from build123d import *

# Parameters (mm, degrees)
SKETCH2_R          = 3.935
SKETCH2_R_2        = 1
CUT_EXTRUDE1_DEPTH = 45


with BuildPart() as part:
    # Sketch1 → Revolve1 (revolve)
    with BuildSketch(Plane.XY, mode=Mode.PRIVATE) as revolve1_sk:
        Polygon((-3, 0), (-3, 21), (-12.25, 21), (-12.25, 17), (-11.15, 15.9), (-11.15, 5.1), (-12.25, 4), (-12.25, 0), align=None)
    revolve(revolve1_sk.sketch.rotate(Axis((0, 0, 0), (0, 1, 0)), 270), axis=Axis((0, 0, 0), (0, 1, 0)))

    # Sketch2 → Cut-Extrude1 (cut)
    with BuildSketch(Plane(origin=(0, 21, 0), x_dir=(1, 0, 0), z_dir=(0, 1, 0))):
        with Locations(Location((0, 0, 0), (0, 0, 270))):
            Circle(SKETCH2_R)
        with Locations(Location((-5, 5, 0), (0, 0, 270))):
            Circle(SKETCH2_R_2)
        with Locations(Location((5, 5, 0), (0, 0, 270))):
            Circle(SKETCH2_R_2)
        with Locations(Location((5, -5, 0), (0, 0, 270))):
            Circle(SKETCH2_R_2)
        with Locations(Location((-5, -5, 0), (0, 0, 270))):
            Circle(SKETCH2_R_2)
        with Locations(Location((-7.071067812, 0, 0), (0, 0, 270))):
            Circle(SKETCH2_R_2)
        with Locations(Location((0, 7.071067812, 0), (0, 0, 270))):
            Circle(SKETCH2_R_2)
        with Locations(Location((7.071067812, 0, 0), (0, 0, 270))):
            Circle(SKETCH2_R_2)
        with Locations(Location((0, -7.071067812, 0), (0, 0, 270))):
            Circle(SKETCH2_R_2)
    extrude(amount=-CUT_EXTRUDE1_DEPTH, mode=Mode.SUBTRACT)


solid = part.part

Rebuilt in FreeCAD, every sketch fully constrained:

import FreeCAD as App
import Part
import Sketcher


def add_polygon(sketch, points):
    """Adds a closed chain of lines whose ends are joined by coincident constraints."""
    first, n = sketch.GeometryCount, len(points)
    for a, b in zip(points, points[1:] + points[:1]):
        sketch.addGeometry(Part.LineSegment(App.Vector(*a, 0), App.Vector(*b, 0)), False)
    for i in range(n):
        sketch.addConstraint(Sketcher.Constraint("Coincident", first + i, 2, first + (i + 1) % n, 1))

doc = App.newDocument("Part")
body = doc.addObject("PartDesign::Body", "Body")

# Sketch on XY plane
sketch1 = doc.addObject("Sketcher::SketchObject", "Sketch")
body.addObject(sketch1)
sketch1.AttachmentSupport = (doc.XY_Plane, [""])
sketch1.MapMode = "FlatFace"
add_polygon(sketch1, [(-3, 0), (-3, 21), (-12.2, 21), (-12.2, 17), (-11.2, 15.9), (-11.2, 5.1), (-12.2, 4), (-12.2, 0)])  # lines 0-7
sketch1.addConstraint(Sketcher.Constraint("Vertical", 0))
sketch1.addConstraint(Sketcher.Constraint("Horizontal", 1))
sketch1.addConstraint(Sketcher.Constraint("Vertical", 2))
sketch1.addConstraint(Sketcher.Constraint("Vertical", 4))
sketch1.addConstraint(Sketcher.Constraint("Vertical", 6))
sketch1.addConstraint(Sketcher.Constraint("Horizontal", 7))
sketch1.addConstraint(Sketcher.Constraint("PointOnObject", 6, 2, -1))
sketch1.addConstraint(Sketcher.Constraint("Perpendicular", 3, 5))
sketch1.addConstraint(Sketcher.Constraint("Vertical", 2, 2, 5, 2))
sketch1.addConstraint(Sketcher.Constraint("Equal", 2, 6))
sketch1.addConstraint(Sketcher.Constraint("Equal", 3, 5))
sketch1.addConstraint(Sketcher.Constraint("DistanceY", 0, 1, 0, 2, 21.0))
sketch1.addConstraint(Sketcher.Constraint("DistanceY", 2, 2, 2, 1, 4.0))
sketch1.addConstraint(Sketcher.Constraint("DistanceY", 4, 2, 4, 1, 10.8))
sketch1.addConstraint(Sketcher.Constraint("DistanceX", 0, 2, -1, 1, 3.0))
sketch1.addConstraint(Sketcher.Constraint("DistanceX", 1, 2, 1, 1, 9.25))
revolution = doc.addObject("PartDesign::Revolution", "Revolution")
body.addObject(revolution)
revolution.Profile = sketch1
revolution.ReferenceAxis = (sketch1, ["V_Axis"])
revolution.Angle = 360

# Sketch on XZ plane
sketch2 = doc.addObject("Sketcher::SketchObject", "Sketch001")
body.addObject(sketch2)
sketch2.AttachmentSupport = (doc.XZ_Plane, [""])
sketch2.MapMode = "FlatFace"
sketch2.AttachmentOffset = App.Placement(App.Vector(0, 0, -21), App.Rotation())
sketch2.addGeometry(Part.Circle(App.Vector(0, 0, 0), App.Vector(0, 0, 1), 3.9), False)
sketch2.addGeometry(Part.Circle(App.Vector(-5, -5, 0), App.Vector(0, 0, 1), 1), False)
sketch2.addGeometry(Part.Circle(App.Vector(5, -5, 0), App.Vector(0, 0, 1), 1), False)
sketch2.addGeometry(Part.Circle(App.Vector(5, 5, 0), App.Vector(0, 0, 1), 1), False)
sketch2.addGeometry(Part.Circle(App.Vector(-5, 5, 0), App.Vector(0, 0, 1), 1), False)
sketch2.addGeometry(Part.Circle(App.Vector(-7.1, 0, 0), App.Vector(0, 0, 1), 1), False)
sketch2.addGeometry(Part.Circle(App.Vector(0, -7.1, 0), App.Vector(0, 0, 1), 1), False)
sketch2.addGeometry(Part.Circle(App.Vector(7.1, 0, 0), App.Vector(0, 0, 1), 1), False)
sketch2.addGeometry(Part.Circle(App.Vector(0, 7.1, 0), App.Vector(0, 0, 1), 1), False)
sketch2.addConstraint(Sketcher.Constraint("Coincident", 0, 3, -1, 1))
sketch2.addConstraint(Sketcher.Constraint("Equal", 1, 2))
sketch2.addConstraint(Sketcher.Constraint("Equal", 2, 3))
sketch2.addConstraint(Sketcher.Constraint("Equal", 3, 4))
sketch2.addConstraint(Sketcher.Constraint("Equal", 4, 5))
sketch2.addConstraint(Sketcher.Constraint("Equal", 5, 6))
sketch2.addConstraint(Sketcher.Constraint("Equal", 6, 7))
sketch2.addConstraint(Sketcher.Constraint("Equal", 7, 8))
sketch2.addConstraint(Sketcher.Constraint("Symmetric", 1, 3, 3, 3, -1, 1))
sketch2.addConstraint(Sketcher.Constraint("Symmetric", 2, 3, 4, 3, -1, 1))
sketch2.addConstraint(Sketcher.Constraint("Symmetric", 5, 3, 7, 3, -1, 1))
sketch2.addConstraint(Sketcher.Constraint("Symmetric", 6, 3, 8, 3, -1, 1))
sketch2.addConstraint(Sketcher.Constraint("Symmetric", 1, 3, 2, 3, -2))
sketch2.addConstraint(Sketcher.Constraint("PointOnObject", 5, 3, -1))
sketch2.addConstraint(Sketcher.Constraint("PointOnObject", 6, 3, -2))
sketch2.addConstraint(Sketcher.Constraint("Diameter", 1, 2.0))
sketch2.addConstraint(Sketcher.Constraint("Diameter", 0, 7.87))
sketch2.addConstraint(Sketcher.Constraint("DistanceX", 1, 3, -1, 1, 5.0))
sketch2.addConstraint(Sketcher.Constraint("DistanceY", 1, 3, -1, 1, 5.0))
sketch2.addConstraint(Sketcher.Constraint("DistanceX", 5, 3, -1, 1, 7.071068))
sketch2.addConstraint(Sketcher.Constraint("DistanceY", 6, 3, -1, 1, 7.071068))
pocket1 = doc.addObject("PartDesign::Pocket", "Pocket")
body.addObject(pocket1)
pocket1.Profile = sketch2
pocket1.Length = 45
pocket1.Reversed = True

doc.recompute()
